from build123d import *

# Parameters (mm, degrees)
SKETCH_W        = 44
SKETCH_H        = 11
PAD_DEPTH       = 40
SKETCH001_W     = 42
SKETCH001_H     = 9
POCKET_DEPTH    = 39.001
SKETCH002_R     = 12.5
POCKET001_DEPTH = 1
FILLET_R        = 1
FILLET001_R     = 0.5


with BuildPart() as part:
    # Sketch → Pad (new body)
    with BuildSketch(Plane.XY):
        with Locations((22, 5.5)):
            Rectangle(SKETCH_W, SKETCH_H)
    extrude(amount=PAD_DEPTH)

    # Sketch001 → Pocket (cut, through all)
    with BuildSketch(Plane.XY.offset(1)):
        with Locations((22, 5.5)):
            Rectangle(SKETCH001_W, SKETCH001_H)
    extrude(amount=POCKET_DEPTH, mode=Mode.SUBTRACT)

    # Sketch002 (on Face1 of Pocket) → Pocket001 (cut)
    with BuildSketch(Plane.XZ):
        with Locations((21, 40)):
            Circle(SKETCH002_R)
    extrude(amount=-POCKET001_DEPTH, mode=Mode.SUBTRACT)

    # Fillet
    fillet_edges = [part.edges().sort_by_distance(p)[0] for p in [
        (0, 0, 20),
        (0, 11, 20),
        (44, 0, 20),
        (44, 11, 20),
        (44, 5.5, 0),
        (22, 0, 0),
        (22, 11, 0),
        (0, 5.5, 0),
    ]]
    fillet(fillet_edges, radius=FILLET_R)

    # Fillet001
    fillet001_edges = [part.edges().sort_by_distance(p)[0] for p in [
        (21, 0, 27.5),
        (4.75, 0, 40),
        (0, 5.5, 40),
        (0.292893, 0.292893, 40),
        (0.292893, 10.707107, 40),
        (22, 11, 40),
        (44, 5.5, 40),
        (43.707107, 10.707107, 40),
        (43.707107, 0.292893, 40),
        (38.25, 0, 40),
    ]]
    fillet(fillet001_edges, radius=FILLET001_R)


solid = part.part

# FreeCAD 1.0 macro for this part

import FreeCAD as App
import Part
import Sketcher
Q = App.Units.Quantity


def edges_at(feature, points):
    """Names of the edges that pass closest to the given points."""
    edges = feature.Shape.Edges
    near = lambda p: min(range(len(edges)), key=lambda i: edges[i].distToShape(Part.Vertex(*p))[0])
    return sorted({f"Edge{near(p) + 1}" for p in points})

doc = App.newDocument("Part")
body = doc.addObject("PartDesign::Body", "Body")

# Sketch on XY plane
sketch1 = doc.addObject("Sketcher::SketchObject", "Sketch")
body.addObject(sketch1)
sketch1.AttachmentSupport = (doc.XY_Plane, [""])
sketch1.MapMode = "FlatFace"
sketch1.addGeometry([
    Part.LineSegment(App.Vector(0, 11, 0), App.Vector(0, 0, 0)),
    Part.LineSegment(App.Vector(0, 0, 0), App.Vector(44, 0, 0)),
    Part.LineSegment(App.Vector(44, 0, 0), App.Vector(44, 11, 0)),
    Part.LineSegment(App.Vector(44, 11, 0), App.Vector(0, 11, 0)),
], False)
sketch1.addConstraint([
    Sketcher.Constraint("Coincident", 0, 2, 1, 1),
    Sketcher.Constraint("Coincident", 1, 2, 2, 1),
    Sketcher.Constraint("Coincident", 2, 2, 3, 1),
    Sketcher.Constraint("Coincident", 3, 2, 0, 1),
    Sketcher.Constraint("Vertical", 0),
    Sketcher.Constraint("Horizontal", 1),
    Sketcher.Constraint("Vertical", 2),
    Sketcher.Constraint("Horizontal", 3),
    Sketcher.Constraint("Coincident", 0, 2, -1, 1),
    Sketcher.Constraint("DistanceX", 1, 1, 1, 2, Q("44 mm")),
    Sketcher.Constraint("DistanceY", 0, 2, 0, 1, Q("11 mm")),
])
pad1 = doc.addObject("PartDesign::Pad", "Pad")
body.addObject(pad1)
pad1.Profile = sketch1
pad1.Length = 40

# Sketch on XY plane
sketch2 = doc.addObject("Sketcher::SketchObject", "Sketch001")
body.addObject(sketch2)
sketch2.AttachmentSupport = (doc.XY_Plane, [""])
sketch2.MapMode = "FlatFace"
sketch2.AttachmentOffset = App.Placement(App.Vector(0, 0, 1), App.Rotation())
sketch2.addGeometry([
    Part.LineSegment(App.Vector(1, 10, 0), App.Vector(1, 1, 0)),
    Part.LineSegment(App.Vector(1, 1, 0), App.Vector(43, 1, 0)),
    Part.LineSegment(App.Vector(43, 1, 0), App.Vector(43, 10, 0)),
    Part.LineSegment(App.Vector(43, 10, 0), App.Vector(1, 10, 0)),
], False)
sketch2.addConstraint([
    Sketcher.Constraint("Coincident", 0, 2, 1, 1),
    Sketcher.Constraint("Coincident", 1, 2, 2, 1),
    Sketcher.Constraint("Coincident", 2, 2, 3, 1),
    Sketcher.Constraint("Coincident", 3, 2, 0, 1),
    Sketcher.Constraint("Vertical", 0),
    Sketcher.Constraint("Horizontal", 1),
    Sketcher.Constraint("Vertical", 2),
    Sketcher.Constraint("Horizontal", 3),
    Sketcher.Constraint("DistanceX", 1, 1, 1, 2, Q("42 mm")),
    Sketcher.Constraint("DistanceY", 0, 2, 0, 1, Q("9 mm")),
    Sketcher.Constraint("DistanceX", -1, 1, 0, 2, Q("1 mm")),
    Sketcher.Constraint("DistanceY", -1, 1, 0, 2, Q("1 mm")),
])
pocket1 = doc.addObject("PartDesign::Pocket", "Pocket")
body.addObject(pocket1)
pocket1.Profile = sketch2
pocket1.Type = "ThroughAll"
pocket1.Reversed = True

# Sketch on XZ plane
sketch3 = doc.addObject("Sketcher::SketchObject", "Sketch002")
body.addObject(sketch3)
sketch3.AttachmentSupport = (doc.XZ_Plane, [""])
sketch3.MapMode = "FlatFace"
sketch3.addGeometry(Part.Circle(App.Vector(21, 40, 0), App.Vector(0, 0, 1), 12), False)
sketch3.addConstraint([
    Sketcher.Constraint("Diameter", 0, Q("25 mm")),
    Sketcher.Constraint("DistanceX", -1, 1, 0, 3, Q("21 mm")),
    Sketcher.Constraint("DistanceY", -1, 1, 0, 3, Q("40 mm")),
])
pocket2 = doc.addObject("PartDesign::Pocket", "Pocket001")
body.addObject(pocket2)
pocket2.Profile = sketch3
pocket2.Length = 1
doc.recompute()

fillet = doc.addObject("PartDesign::Fillet", "Fillet")
body.addObject(fillet)
fillet.Base = (pocket2, edges_at(pocket2, [
    (0, 0, 20),
    (0, 11, 20),
    (44, 0, 20),
    (44, 11, 20),
    (44, 5.5, 0),
    (22, 0, 0),
    (22, 11, 0),
    (0, 5.5, 0),
]))
fillet.Radius = 1
doc.recompute()

fillet2 = doc.addObject("PartDesign::Fillet", "Fillet001")
body.addObject(fillet2)
fillet2.Base = (fillet, edges_at(fillet, [
    (21, 0, 27.5),
    (4.75, 0, 40),
    (0, 5.5, 40),
    (0.293, 0.293, 40),
    (0.293, 10.707, 40),
    (22, 11, 40),
    (44, 5.5, 40),
    (43.707, 10.707, 40),
    (43.707, 0.293, 40),
    (38.25, 0, 40),
]))
fillet2.Radius = 0.5

doc.recompute()
